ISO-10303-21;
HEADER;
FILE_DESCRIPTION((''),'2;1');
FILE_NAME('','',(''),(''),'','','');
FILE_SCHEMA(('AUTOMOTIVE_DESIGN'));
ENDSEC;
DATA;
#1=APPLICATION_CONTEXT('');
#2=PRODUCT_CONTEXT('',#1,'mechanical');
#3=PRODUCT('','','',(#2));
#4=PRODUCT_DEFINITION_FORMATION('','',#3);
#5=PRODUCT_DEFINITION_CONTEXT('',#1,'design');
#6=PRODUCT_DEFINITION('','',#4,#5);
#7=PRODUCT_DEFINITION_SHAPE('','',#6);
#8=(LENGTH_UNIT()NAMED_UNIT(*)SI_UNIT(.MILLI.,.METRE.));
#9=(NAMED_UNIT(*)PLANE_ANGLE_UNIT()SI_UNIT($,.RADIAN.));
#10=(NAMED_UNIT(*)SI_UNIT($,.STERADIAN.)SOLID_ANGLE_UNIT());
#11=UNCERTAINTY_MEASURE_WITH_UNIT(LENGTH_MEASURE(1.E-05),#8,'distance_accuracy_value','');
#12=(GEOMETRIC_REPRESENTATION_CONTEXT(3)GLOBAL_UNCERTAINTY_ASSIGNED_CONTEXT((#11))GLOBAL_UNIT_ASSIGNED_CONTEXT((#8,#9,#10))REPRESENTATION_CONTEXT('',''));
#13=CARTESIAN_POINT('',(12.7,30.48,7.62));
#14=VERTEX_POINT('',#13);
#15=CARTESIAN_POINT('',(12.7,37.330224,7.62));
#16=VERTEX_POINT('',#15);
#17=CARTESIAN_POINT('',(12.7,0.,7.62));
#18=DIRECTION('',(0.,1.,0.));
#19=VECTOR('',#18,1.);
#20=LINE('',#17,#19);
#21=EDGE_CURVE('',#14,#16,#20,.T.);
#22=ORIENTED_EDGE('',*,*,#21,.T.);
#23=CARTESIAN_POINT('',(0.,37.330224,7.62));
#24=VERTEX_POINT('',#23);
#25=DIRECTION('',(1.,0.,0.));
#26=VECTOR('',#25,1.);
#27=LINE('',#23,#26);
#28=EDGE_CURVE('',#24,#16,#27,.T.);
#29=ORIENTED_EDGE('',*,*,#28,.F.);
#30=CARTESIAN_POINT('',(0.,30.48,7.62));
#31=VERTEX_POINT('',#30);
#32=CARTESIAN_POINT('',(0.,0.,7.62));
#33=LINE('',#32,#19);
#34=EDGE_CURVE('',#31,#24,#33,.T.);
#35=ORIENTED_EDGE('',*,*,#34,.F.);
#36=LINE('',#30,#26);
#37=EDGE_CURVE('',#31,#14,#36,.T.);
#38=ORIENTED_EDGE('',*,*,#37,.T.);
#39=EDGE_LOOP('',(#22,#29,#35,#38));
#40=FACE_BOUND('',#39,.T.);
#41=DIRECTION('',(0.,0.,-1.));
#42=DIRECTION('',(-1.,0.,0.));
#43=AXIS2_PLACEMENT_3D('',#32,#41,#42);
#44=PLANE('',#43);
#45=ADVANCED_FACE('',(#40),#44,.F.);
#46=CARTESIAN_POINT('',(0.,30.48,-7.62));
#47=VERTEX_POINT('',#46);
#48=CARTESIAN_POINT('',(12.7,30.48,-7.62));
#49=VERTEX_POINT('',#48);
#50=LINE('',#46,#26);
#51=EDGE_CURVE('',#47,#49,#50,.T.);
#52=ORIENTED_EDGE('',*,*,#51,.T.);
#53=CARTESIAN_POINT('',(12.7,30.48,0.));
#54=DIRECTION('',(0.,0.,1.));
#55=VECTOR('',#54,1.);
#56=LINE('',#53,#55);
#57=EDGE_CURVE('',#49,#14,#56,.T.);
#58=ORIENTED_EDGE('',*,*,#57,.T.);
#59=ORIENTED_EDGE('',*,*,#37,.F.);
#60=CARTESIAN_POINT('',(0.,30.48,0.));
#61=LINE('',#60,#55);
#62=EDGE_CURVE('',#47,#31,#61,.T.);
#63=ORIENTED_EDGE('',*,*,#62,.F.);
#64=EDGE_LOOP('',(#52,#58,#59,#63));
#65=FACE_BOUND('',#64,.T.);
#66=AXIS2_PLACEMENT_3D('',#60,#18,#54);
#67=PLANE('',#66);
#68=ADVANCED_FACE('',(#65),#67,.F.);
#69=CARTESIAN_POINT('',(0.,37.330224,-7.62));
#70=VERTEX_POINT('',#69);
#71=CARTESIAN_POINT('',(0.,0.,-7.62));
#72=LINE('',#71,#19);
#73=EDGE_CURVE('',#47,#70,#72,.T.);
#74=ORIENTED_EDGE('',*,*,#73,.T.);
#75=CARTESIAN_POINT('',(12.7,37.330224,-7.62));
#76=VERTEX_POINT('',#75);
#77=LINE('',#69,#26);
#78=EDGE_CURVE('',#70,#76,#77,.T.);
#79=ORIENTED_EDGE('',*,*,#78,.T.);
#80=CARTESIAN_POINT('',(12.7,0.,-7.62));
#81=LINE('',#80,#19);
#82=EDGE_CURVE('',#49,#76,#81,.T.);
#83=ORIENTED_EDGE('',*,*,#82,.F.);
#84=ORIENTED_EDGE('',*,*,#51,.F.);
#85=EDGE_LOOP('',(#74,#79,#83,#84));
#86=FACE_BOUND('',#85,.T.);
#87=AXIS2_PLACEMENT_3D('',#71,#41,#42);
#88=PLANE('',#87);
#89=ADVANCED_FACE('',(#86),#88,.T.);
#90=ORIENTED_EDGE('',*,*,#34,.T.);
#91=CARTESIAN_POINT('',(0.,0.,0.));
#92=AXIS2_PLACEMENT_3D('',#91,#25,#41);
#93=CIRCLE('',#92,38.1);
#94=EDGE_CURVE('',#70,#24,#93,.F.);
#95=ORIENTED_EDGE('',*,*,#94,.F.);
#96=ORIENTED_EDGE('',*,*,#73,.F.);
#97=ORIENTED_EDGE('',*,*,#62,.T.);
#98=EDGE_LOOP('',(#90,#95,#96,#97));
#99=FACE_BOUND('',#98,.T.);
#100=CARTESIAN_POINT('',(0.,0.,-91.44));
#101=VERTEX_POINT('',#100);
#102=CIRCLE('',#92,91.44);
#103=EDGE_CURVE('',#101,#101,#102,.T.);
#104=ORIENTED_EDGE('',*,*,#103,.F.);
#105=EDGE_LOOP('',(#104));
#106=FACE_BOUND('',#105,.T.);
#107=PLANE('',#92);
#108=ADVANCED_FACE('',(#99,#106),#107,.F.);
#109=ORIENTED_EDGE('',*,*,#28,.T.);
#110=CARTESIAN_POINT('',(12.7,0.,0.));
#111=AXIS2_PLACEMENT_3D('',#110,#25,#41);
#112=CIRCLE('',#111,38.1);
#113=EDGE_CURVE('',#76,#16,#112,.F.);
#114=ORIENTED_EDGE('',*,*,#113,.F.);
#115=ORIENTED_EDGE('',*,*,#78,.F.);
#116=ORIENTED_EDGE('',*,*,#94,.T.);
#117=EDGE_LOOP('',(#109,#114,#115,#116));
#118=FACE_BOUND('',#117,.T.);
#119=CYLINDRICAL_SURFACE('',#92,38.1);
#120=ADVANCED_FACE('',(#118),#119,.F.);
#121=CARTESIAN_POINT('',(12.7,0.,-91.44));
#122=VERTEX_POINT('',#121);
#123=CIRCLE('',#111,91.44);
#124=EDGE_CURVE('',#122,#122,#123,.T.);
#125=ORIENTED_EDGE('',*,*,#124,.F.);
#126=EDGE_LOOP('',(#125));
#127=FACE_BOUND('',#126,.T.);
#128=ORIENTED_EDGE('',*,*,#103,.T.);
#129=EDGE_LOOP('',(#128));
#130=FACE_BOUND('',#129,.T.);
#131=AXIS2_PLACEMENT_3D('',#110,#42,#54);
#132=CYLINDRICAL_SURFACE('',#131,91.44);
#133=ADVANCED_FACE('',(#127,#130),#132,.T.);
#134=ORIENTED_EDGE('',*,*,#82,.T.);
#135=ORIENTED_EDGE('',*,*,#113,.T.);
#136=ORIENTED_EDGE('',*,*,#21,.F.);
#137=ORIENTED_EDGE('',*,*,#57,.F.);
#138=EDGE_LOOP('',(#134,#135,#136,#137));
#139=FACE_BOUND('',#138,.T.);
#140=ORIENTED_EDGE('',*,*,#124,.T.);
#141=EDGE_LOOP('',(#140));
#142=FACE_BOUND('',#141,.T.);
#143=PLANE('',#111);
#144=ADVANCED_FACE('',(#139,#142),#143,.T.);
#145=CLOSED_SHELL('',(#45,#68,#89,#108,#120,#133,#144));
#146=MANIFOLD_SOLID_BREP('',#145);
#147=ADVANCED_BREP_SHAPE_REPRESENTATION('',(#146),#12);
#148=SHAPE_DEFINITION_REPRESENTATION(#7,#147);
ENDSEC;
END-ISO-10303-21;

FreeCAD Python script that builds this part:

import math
import FreeCAD as App
import Part
import Sketcher
from FreeCAD import Vector
Q = App.Units.Quantity

doc = App.newDocument("Part")
body = doc.addObject("PartDesign::Body", "Body")

sketch1 = doc.addObject("Sketcher::SketchObject", "Sketch")
body.addObject(sketch1)
sketch1.AttachmentSupport = (doc.YZ_Plane, [""])
sketch1.MapMode = "FlatFace"
sketch1.addGeometry(Part.Circle(Vector(0, 0, 0), Vector(0, 0, 1), 91.44), False)
sketch1.addConstraint(Sketcher.Constraint("Coincident", 0, 3, -1, 1))
sketch1.addConstraint(Sketcher.Constraint("Diameter", 0, Q("7.2 in")))
pad1 = doc.addObject("PartDesign::Pad", "Pad")
body.addObject(pad1)
pad1.Profile = sketch1
pad1.Length = Q("0.5 in")

sketch2 = doc.addObject("Sketcher::SketchObject", "Sketch001")
body.addObject(sketch2)
sketch2.AttachmentSupport = (doc.YZ_Plane, [""])
sketch2.MapMode = "FlatFace"
sketch2.AttachmentOffset = App.Placement(Vector(0, 0, 0.5 * 25.4), App.Rotation())
sketch2.addGeometry(Part.LineSegment(Vector(37.330224, -7.62, 0), Vector(30.48, -7.62, 0)), False)
sketch2.addGeometry(Part.LineSegment(Vector(30.48, -7.62, 0), Vector(30.48, 7.62, 0)), False)
sketch2.addGeometry(Part.LineSegment(Vector(30.48, 7.62, 0), Vector(37.330224, 7.62, 0)), False)
sketch2.addGeometry(Part.ArcOfCircle(Part.Circle(Vector(0, 0, 0), Vector(0, 0, 1), 38.1), math.radians(11.536959), math.radians(348.463041)), False)
sketch2.addConstraint(Sketcher.Constraint("Coincident", 0, 2, 1, 1))
sketch2.addConstraint(Sketcher.Constraint("Coincident", 1, 2, 2, 1))
sketch2.addConstraint(Sketcher.Constraint("Coincident", 2, 2, 3, 1))
sketch2.addConstraint(Sketcher.Constraint("Coincident", 3, 2, 0, 1))
sketch2.addConstraint(Sketcher.Constraint("Horizontal", 0))
sketch2.addConstraint(Sketcher.Constraint("Vertical", 1))
sketch2.addConstraint(Sketcher.Constraint("Horizontal", 2))
sketch2.addConstraint(Sketcher.Constraint("Coincident", 3, 3, -1, 1))
sketch2.addConstraint(Sketcher.Constraint("Vertical", 2, 2, 3, 2))
sketch2.addConstraint(Sketcher.Constraint("Radius", 3, Q("1.5 in")))
sketch2.addConstraint(Sketcher.Constraint("DistanceY", 1, 1, 1, 2, Q("0.6 in")))
sketch2.addConstraint(Sketcher.Constraint("DistanceX", -1, 1, 0, 2, Q("1.2 in")))
pocket1 = doc.addObject("PartDesign::Pocket", "Pocket")
body.addObject(pocket1)
pocket1.Profile = sketch2
pocket1.Length = Q("0.5 in")

doc.recompute()
